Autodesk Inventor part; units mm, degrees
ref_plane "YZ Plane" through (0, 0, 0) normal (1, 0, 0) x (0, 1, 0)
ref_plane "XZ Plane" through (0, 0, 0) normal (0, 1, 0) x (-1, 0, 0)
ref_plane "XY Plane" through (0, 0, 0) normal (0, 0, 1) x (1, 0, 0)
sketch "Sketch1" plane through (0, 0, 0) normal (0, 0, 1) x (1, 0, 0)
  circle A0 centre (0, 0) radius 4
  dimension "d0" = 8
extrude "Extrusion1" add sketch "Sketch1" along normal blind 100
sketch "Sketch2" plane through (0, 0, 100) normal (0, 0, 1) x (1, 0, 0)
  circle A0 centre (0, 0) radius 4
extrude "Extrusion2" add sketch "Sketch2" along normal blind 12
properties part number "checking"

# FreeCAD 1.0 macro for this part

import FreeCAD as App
import Part
import Sketcher
from FreeCAD import Vector
Q = App.Units.Quantity

doc = App.newDocument("Part")
body = doc.addObject("PartDesign::Body", "Body")

sketch1 = body.newObject("Sketcher::SketchObject", "Sketch")
sketch1.AttachmentSupport = (doc.getObject("XY_Plane"), [""])
sketch1.MapMode = "FlatFace"
sketch1.addGeometry(Part.Circle(Vector(0, 0, 0), Vector(0, 0, 1), 4), False)
sketch1.addConstraint([
    Sketcher.Constraint("Coincident", 0, 3, -1, 1),
    Sketcher.Constraint("Diameter", 0, Q("8 mm")),
])
pad1 = body.newObject("PartDesign::Pad", "Pad")
pad1.Profile = sketch1
pad1.Length = 100

sketch2 = body.newObject("Sketcher::SketchObject", "Sketch001")
sketch2.AttachmentSupport = (doc.getObject("XY_Plane"), [""])
sketch2.MapMode = "FlatFace"
sketch2.AttachmentOffset = App.Placement(Vector(0, 0, 100), App.Rotation())
sketch2.addGeometry(Part.Circle(Vector(0, 0, 0), Vector(0, 0, 1), 4), False)
sketch2.addConstraint([
    Sketcher.Constraint("Coincident", 0, 3, -1, 1),
    Sketcher.Constraint("Diameter", 0, Q("8 mm")),
])
pad2 = body.newObject("PartDesign::Pad", "Pad001")
pad2.Profile = sketch2
pad2.Length = 12

doc.recompute()
